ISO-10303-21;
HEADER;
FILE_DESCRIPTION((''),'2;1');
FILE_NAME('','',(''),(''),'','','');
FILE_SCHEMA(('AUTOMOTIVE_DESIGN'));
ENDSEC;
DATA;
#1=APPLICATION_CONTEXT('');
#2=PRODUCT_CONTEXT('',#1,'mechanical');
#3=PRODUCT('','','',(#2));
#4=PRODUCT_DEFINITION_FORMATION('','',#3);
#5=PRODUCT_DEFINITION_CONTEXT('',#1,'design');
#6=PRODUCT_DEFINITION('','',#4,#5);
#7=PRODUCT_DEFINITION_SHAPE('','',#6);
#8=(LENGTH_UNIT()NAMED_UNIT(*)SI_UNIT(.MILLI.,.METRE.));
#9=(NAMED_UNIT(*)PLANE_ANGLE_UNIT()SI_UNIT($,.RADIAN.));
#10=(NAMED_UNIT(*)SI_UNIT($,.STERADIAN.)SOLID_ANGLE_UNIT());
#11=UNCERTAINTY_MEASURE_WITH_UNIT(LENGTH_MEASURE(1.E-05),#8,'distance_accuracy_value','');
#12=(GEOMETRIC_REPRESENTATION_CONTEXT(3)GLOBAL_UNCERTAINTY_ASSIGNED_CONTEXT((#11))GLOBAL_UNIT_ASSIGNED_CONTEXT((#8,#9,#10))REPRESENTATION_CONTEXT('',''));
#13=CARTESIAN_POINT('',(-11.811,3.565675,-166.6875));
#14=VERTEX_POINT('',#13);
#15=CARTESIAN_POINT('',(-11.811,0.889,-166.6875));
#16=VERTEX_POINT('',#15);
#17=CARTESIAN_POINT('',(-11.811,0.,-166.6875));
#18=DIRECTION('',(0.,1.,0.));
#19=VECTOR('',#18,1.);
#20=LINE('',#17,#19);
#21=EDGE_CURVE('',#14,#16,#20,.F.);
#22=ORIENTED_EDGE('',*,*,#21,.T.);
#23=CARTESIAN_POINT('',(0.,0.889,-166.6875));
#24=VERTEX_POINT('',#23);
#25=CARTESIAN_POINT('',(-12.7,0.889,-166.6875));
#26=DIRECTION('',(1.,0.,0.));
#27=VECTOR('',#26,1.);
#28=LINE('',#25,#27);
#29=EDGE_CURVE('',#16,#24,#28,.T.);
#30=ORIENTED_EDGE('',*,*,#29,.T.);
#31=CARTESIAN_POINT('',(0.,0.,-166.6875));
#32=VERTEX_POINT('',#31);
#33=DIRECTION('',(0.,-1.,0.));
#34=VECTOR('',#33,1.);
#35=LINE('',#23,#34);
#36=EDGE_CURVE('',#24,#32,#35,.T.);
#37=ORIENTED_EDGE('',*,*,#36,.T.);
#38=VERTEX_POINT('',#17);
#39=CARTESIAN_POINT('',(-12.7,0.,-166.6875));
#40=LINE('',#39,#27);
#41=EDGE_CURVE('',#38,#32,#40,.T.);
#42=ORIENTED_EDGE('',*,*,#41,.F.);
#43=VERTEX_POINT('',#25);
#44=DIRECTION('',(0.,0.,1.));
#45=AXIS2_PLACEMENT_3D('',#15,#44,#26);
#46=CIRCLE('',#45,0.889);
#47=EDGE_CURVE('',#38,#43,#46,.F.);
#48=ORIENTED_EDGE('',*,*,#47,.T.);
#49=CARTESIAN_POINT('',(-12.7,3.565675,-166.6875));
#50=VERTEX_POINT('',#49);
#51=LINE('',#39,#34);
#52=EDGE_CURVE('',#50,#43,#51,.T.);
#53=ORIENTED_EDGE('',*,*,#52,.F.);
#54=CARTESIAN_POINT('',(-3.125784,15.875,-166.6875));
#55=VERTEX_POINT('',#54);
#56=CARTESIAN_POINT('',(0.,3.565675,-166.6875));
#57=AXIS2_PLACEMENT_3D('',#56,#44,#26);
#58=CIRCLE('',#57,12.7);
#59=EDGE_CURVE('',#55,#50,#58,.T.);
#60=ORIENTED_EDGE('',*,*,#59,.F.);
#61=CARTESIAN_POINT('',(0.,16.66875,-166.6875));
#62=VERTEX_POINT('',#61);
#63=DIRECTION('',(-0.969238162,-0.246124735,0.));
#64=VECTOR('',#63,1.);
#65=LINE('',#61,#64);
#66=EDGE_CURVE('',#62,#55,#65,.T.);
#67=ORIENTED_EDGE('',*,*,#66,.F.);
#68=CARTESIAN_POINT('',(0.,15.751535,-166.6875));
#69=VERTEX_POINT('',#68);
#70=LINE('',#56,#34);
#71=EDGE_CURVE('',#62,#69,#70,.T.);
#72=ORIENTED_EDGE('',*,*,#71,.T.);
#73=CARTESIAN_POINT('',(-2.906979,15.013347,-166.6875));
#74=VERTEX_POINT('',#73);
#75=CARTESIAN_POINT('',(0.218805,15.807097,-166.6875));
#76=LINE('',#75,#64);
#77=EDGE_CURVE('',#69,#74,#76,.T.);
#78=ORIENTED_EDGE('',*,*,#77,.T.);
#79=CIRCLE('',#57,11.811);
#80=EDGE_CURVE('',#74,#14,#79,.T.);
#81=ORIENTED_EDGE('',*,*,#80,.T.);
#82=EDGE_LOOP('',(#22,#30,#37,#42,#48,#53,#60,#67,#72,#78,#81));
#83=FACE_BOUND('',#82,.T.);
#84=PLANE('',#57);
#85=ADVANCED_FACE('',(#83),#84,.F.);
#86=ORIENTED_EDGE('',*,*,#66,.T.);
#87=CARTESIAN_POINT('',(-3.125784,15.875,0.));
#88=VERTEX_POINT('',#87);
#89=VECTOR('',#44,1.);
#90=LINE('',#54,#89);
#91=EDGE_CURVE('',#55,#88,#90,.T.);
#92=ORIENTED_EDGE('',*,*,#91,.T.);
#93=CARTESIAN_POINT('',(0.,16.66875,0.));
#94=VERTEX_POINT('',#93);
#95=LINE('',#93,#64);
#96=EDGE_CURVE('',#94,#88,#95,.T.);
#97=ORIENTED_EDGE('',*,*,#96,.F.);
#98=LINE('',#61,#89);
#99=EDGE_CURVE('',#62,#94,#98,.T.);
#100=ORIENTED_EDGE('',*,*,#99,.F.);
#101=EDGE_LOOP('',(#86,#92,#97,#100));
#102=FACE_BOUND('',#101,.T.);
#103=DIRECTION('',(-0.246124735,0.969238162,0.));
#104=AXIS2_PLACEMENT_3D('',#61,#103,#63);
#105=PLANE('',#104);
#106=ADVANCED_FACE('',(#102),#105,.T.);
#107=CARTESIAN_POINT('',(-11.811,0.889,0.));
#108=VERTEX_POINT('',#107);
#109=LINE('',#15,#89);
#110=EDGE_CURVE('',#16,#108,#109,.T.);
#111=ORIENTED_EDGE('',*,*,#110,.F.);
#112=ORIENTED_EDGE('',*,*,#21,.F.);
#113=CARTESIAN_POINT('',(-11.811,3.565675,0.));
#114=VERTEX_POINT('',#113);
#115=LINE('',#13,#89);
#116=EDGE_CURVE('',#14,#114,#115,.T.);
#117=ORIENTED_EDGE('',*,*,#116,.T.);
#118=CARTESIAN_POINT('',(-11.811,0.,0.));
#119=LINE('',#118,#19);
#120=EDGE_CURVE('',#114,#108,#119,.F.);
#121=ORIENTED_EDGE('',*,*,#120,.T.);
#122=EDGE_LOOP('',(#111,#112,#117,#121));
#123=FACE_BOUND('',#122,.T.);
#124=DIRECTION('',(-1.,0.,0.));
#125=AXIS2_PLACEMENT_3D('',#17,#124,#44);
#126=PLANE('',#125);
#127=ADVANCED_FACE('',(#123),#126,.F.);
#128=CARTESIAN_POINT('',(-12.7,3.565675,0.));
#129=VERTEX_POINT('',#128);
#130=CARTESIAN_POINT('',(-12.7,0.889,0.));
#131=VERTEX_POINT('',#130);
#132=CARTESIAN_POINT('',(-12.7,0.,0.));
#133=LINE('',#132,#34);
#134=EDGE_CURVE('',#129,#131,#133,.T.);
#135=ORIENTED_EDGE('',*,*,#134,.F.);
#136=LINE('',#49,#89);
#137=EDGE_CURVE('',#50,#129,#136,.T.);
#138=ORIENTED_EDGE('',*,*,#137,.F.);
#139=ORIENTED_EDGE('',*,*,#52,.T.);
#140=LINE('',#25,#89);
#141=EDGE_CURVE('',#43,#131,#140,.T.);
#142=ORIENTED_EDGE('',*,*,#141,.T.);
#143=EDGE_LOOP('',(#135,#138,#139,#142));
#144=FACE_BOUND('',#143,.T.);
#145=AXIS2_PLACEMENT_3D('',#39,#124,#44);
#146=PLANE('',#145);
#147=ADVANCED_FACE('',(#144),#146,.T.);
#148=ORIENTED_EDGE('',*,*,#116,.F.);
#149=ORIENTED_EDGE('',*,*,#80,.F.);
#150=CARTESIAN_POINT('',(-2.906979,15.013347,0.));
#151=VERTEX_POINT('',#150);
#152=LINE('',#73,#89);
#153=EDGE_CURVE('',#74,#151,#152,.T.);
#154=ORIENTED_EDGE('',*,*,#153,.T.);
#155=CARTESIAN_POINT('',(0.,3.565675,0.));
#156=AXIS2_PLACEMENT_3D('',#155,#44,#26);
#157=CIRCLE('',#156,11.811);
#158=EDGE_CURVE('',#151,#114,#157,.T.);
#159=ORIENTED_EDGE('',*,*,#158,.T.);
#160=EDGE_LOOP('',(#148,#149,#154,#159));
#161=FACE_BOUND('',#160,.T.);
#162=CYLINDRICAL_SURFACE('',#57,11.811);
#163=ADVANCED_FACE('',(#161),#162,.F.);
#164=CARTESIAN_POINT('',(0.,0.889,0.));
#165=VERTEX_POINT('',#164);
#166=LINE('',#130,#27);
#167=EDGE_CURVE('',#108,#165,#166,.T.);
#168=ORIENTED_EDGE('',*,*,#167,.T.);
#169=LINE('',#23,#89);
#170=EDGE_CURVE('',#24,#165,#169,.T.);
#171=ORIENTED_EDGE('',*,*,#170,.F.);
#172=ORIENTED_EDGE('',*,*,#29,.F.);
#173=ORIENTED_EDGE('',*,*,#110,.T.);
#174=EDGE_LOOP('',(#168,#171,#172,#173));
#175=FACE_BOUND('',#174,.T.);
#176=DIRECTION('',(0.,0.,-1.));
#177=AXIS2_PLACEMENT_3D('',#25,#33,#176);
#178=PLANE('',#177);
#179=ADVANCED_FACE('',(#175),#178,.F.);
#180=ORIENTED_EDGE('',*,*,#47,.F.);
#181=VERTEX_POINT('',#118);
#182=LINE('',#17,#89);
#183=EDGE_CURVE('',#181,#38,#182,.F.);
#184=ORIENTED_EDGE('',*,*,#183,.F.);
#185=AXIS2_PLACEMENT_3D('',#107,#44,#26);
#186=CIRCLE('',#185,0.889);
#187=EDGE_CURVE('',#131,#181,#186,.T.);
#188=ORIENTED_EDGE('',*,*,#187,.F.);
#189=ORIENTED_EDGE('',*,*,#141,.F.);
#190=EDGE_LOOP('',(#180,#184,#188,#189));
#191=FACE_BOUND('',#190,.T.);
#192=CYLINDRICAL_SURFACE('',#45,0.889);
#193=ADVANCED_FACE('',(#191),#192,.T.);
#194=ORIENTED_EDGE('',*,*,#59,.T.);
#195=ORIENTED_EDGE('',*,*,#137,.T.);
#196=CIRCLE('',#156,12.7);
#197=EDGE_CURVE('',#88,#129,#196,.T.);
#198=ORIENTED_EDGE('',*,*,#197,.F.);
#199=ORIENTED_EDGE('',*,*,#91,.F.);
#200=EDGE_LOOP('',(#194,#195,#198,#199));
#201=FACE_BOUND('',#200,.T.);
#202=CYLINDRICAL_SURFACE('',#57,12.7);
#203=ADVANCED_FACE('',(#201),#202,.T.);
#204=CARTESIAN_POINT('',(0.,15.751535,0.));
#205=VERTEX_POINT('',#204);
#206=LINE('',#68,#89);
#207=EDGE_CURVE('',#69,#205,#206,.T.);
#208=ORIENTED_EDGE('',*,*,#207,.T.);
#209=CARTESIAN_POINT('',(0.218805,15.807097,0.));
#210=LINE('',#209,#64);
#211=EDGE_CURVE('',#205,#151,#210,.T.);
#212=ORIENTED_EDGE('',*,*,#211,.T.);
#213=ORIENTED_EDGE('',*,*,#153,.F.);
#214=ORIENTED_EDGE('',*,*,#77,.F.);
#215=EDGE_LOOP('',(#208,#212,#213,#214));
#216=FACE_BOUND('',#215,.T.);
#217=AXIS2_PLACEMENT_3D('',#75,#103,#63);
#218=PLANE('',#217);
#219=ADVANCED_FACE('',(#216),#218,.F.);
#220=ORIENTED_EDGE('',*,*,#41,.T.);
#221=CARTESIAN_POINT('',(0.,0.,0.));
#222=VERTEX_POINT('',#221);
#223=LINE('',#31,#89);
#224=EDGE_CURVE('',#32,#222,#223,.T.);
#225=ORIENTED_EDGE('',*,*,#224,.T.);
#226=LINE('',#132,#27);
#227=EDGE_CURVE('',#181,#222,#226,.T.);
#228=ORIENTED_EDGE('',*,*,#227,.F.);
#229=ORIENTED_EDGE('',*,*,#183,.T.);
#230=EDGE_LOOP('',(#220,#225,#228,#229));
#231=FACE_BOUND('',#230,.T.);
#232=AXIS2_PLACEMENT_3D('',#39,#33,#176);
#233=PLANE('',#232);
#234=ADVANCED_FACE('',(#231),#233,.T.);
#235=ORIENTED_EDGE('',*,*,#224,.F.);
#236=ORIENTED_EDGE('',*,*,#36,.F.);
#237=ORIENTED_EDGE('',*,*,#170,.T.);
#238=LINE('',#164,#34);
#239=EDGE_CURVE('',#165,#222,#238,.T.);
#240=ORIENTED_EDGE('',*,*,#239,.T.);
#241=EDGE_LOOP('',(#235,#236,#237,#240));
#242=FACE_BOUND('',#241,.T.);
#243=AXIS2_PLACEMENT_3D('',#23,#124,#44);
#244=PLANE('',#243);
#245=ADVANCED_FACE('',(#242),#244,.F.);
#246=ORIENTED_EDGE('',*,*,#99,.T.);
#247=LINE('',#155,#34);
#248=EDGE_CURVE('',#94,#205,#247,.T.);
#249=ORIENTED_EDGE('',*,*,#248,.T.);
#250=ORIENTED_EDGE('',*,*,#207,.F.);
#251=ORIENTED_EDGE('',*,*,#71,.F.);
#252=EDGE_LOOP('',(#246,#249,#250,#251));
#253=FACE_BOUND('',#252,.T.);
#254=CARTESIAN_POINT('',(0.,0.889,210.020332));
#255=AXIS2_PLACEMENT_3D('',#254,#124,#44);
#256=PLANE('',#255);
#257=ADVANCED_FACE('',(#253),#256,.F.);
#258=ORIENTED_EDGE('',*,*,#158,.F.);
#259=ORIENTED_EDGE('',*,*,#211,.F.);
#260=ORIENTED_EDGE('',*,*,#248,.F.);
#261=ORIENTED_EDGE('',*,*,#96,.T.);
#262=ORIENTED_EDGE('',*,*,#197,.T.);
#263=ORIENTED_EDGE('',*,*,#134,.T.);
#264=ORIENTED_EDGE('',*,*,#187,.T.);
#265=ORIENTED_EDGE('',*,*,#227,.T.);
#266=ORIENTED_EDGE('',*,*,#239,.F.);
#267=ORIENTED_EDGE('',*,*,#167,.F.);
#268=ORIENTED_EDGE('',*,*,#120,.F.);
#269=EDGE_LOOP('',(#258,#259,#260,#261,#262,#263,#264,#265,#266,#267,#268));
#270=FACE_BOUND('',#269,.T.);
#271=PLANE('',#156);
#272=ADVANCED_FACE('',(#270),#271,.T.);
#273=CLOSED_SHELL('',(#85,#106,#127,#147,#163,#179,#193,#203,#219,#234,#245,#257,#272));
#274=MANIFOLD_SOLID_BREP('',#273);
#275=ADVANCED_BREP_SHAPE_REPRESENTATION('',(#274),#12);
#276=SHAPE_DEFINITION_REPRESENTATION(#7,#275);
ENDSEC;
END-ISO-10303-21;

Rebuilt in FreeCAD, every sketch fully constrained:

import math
import FreeCAD as App
import Part
import Sketcher
Q = App.Units.Quantity


def edges_at(feature, points):
    """Names of the edges that pass closest to the given points."""
    edges = feature.Shape.Edges
    near = lambda p: min(range(len(edges)), key=lambda i: edges[i].distToShape(Part.Vertex(*p))[0])
    return sorted({f"Edge{near(p) + 1}" for p in points})

doc = App.newDocument("Part")
params = doc.addObject("Spreadsheet::Sheet", "Params")
for row, (alias, value) in enumerate([
    ("sketch1_radius", "0.5 in"),
    ("sketch1_radius2", "0.465 in"),
    ("sketch1_height", "0.035 in"),
    ("pad1_length", "6.5625 in"),
    ("fillet_radius", "0.035 in"),
], start=1):
    params.set(f"A{row}", alias)
    params.set(f"B{row}", "=" + value)
    params.setAlias(f"B{row}", alias)

body = doc.addObject("PartDesign::Body", "Body")

sketch1 = doc.addObject("Sketcher::SketchObject", "Sketch")
body.addObject(sketch1)
sketch1.AttachmentSupport = (doc.XY_Plane, [""])
sketch1.MapMode = "FlatFace"
sketch1.addGeometry([
    Part.LineSegment(App.Vector(0, 16.7, 0), App.Vector(-3.1, 15.9, 0)),
    Part.ArcOfCircle(Part.Circle(App.Vector(0, 3.6, 0), App.Vector(0, 0, 1), 12.7), math.radians(104), math.radians(180)),
    Part.LineSegment(App.Vector(-12.7, 3.6, 0), App.Vector(-12.7, 0, 0)),
    Part.LineSegment(App.Vector(-12.7, 0, 0), App.Vector(0, 0, 0)),
    Part.LineSegment(App.Vector(0, 0, 0), App.Vector(0, 0.9, 0)),
    Part.LineSegment(App.Vector(0, 0.9, 0), App.Vector(-11.8, 0.9, 0)),
    Part.LineSegment(App.Vector(-11.8, 0.9, 0), App.Vector(-11.8, 3.6, 0)),
    Part.ArcOfCircle(Part.Circle(App.Vector(0, 3.6, 0), App.Vector(0, 0, 1), 11.8), math.radians(104), math.radians(180)),
    Part.LineSegment(App.Vector(-2.9, 15, 0), App.Vector(0.2, 15.8, 0)),
    Part.LineSegment(App.Vector(0.2, 15.8, 0), App.Vector(0, 16.7, 0)),
], False)
sketch1.addConstraint([
    Sketcher.Constraint("Tangent", 0, 2, 1, 1),
    Sketcher.Constraint("Tangent", 1, 2, 2, 1),
    Sketcher.Constraint("Coincident", 2, 2, 3, 1),
    Sketcher.Constraint("Coincident", 3, 2, 4, 1),
    Sketcher.Constraint("Coincident", 4, 2, 5, 1),
    Sketcher.Constraint("Coincident", 5, 2, 6, 1),
    Sketcher.Constraint("Tangent", 6, 2, 7, 2),
    Sketcher.Constraint("Tangent", 7, 1, 8, 1),
    Sketcher.Constraint("Coincident", 8, 2, 9, 1),
    Sketcher.Constraint("Coincident", 9, 2, 0, 1),
    Sketcher.Constraint("Vertical", 2),
    Sketcher.Constraint("Horizontal", 3),
    Sketcher.Constraint("Vertical", 4),
    Sketcher.Constraint("Horizontal", 5),
    Sketcher.Constraint("Vertical", 6),
    Sketcher.Constraint("Coincident", 3, 2, -1, 1),
    Sketcher.Constraint("Coincident", 7, 3, 1, 3),
    Sketcher.Constraint("PointOnObject", 1, 3, -2),
    Sketcher.Constraint("PointOnObject", 9, 2, -2),
    Sketcher.Constraint("Parallel", 0, 8),
    Sketcher.Constraint("Perpendicular", 8, 9),
    Sketcher.Constraint("Radius", 1, Q("0.5 in")),
    Sketcher.Constraint("Radius", 7, Q("0.465 in")),
    Sketcher.Constraint("DistanceY", 4, 1, 4, 2, Q("0.035 in")),
    Sketcher.Constraint("DistanceY", -1, 1, 0, 2, Q("0.625 in")),
    Sketcher.Constraint("DistanceY", -1, 1, 9, 2, Q("0.65625 in")),
])
sketch1.setExpression("Constraints[21]", "Params.sketch1_radius")
sketch1.setExpression("Constraints[22]", "Params.sketch1_radius2")
sketch1.setExpression("Constraints[23]", "Params.sketch1_height")
pad1 = doc.addObject("PartDesign::Pad", "Pad")
body.addObject(pad1)
pad1.Profile = sketch1
pad1.setExpression("Length", "Params.pad1_length")
pad1.Reversed = True
doc.recompute()

fillet = doc.addObject("PartDesign::Fillet", "Fillet")
body.addObject(fillet)
fillet.Base = (pad1, edges_at(pad1, [(-12.7, 0, -83.344)]))
fillet.setExpression("Radius", "Params.fillet_radius")

sketch2 = doc.addObject("Sketcher::SketchObject", "Sketch001")
body.addObject(sketch2)
sketch2.AttachmentSupport = (doc.XY_Plane, [""])
sketch2.MapMode = "FlatFace"
sketch2.addGeometry([
    Part.LineSegment(App.Vector(0, 76, 0), App.Vector(0, -56, 0)),
    Part.LineSegment(App.Vector(0, -56, 0), App.Vector(113, -56, 0)),
    Part.LineSegment(App.Vector(113, -56, 0), App.Vector(113, 76, 0)),
    Part.LineSegment(App.Vector(113, 76, 0), App.Vector(0, 76, 0)),
], False)
sketch2.addConstraint([
    Sketcher.Constraint("Coincident", 0, 2, 1, 1),
    Sketcher.Constraint("Coincident", 1, 2, 2, 1),
    Sketcher.Constraint("Coincident", 2, 2, 3, 1),
    Sketcher.Constraint("Coincident", 3, 2, 0, 1),
    Sketcher.Constraint("Vertical", 0),
    Sketcher.Constraint("Horizontal", 1),
    Sketcher.Constraint("Vertical", 2),
    Sketcher.Constraint("Horizontal", 3),
    Sketcher.Constraint("PointOnObject", 0, 2, -2),
    Sketcher.Constraint("DistanceY", 0, 2, 0, 1, Q("131.64717 mm")),
    Sketcher.Constraint("DistanceX", 1, 1, 1, 2, Q("113.047172 mm")),
    Sketcher.Constraint("DistanceY", 0, 2, -1, 1, Q("55.634586 mm")),
])
pocket1 = doc.addObject("PartDesign::Pocket", "Pocket")
body.addObject(pocket1)
pocket1.Profile = sketch2
pocket1.Type = "ThroughAll"
pocket1.Midplane = True

doc.recompute()
